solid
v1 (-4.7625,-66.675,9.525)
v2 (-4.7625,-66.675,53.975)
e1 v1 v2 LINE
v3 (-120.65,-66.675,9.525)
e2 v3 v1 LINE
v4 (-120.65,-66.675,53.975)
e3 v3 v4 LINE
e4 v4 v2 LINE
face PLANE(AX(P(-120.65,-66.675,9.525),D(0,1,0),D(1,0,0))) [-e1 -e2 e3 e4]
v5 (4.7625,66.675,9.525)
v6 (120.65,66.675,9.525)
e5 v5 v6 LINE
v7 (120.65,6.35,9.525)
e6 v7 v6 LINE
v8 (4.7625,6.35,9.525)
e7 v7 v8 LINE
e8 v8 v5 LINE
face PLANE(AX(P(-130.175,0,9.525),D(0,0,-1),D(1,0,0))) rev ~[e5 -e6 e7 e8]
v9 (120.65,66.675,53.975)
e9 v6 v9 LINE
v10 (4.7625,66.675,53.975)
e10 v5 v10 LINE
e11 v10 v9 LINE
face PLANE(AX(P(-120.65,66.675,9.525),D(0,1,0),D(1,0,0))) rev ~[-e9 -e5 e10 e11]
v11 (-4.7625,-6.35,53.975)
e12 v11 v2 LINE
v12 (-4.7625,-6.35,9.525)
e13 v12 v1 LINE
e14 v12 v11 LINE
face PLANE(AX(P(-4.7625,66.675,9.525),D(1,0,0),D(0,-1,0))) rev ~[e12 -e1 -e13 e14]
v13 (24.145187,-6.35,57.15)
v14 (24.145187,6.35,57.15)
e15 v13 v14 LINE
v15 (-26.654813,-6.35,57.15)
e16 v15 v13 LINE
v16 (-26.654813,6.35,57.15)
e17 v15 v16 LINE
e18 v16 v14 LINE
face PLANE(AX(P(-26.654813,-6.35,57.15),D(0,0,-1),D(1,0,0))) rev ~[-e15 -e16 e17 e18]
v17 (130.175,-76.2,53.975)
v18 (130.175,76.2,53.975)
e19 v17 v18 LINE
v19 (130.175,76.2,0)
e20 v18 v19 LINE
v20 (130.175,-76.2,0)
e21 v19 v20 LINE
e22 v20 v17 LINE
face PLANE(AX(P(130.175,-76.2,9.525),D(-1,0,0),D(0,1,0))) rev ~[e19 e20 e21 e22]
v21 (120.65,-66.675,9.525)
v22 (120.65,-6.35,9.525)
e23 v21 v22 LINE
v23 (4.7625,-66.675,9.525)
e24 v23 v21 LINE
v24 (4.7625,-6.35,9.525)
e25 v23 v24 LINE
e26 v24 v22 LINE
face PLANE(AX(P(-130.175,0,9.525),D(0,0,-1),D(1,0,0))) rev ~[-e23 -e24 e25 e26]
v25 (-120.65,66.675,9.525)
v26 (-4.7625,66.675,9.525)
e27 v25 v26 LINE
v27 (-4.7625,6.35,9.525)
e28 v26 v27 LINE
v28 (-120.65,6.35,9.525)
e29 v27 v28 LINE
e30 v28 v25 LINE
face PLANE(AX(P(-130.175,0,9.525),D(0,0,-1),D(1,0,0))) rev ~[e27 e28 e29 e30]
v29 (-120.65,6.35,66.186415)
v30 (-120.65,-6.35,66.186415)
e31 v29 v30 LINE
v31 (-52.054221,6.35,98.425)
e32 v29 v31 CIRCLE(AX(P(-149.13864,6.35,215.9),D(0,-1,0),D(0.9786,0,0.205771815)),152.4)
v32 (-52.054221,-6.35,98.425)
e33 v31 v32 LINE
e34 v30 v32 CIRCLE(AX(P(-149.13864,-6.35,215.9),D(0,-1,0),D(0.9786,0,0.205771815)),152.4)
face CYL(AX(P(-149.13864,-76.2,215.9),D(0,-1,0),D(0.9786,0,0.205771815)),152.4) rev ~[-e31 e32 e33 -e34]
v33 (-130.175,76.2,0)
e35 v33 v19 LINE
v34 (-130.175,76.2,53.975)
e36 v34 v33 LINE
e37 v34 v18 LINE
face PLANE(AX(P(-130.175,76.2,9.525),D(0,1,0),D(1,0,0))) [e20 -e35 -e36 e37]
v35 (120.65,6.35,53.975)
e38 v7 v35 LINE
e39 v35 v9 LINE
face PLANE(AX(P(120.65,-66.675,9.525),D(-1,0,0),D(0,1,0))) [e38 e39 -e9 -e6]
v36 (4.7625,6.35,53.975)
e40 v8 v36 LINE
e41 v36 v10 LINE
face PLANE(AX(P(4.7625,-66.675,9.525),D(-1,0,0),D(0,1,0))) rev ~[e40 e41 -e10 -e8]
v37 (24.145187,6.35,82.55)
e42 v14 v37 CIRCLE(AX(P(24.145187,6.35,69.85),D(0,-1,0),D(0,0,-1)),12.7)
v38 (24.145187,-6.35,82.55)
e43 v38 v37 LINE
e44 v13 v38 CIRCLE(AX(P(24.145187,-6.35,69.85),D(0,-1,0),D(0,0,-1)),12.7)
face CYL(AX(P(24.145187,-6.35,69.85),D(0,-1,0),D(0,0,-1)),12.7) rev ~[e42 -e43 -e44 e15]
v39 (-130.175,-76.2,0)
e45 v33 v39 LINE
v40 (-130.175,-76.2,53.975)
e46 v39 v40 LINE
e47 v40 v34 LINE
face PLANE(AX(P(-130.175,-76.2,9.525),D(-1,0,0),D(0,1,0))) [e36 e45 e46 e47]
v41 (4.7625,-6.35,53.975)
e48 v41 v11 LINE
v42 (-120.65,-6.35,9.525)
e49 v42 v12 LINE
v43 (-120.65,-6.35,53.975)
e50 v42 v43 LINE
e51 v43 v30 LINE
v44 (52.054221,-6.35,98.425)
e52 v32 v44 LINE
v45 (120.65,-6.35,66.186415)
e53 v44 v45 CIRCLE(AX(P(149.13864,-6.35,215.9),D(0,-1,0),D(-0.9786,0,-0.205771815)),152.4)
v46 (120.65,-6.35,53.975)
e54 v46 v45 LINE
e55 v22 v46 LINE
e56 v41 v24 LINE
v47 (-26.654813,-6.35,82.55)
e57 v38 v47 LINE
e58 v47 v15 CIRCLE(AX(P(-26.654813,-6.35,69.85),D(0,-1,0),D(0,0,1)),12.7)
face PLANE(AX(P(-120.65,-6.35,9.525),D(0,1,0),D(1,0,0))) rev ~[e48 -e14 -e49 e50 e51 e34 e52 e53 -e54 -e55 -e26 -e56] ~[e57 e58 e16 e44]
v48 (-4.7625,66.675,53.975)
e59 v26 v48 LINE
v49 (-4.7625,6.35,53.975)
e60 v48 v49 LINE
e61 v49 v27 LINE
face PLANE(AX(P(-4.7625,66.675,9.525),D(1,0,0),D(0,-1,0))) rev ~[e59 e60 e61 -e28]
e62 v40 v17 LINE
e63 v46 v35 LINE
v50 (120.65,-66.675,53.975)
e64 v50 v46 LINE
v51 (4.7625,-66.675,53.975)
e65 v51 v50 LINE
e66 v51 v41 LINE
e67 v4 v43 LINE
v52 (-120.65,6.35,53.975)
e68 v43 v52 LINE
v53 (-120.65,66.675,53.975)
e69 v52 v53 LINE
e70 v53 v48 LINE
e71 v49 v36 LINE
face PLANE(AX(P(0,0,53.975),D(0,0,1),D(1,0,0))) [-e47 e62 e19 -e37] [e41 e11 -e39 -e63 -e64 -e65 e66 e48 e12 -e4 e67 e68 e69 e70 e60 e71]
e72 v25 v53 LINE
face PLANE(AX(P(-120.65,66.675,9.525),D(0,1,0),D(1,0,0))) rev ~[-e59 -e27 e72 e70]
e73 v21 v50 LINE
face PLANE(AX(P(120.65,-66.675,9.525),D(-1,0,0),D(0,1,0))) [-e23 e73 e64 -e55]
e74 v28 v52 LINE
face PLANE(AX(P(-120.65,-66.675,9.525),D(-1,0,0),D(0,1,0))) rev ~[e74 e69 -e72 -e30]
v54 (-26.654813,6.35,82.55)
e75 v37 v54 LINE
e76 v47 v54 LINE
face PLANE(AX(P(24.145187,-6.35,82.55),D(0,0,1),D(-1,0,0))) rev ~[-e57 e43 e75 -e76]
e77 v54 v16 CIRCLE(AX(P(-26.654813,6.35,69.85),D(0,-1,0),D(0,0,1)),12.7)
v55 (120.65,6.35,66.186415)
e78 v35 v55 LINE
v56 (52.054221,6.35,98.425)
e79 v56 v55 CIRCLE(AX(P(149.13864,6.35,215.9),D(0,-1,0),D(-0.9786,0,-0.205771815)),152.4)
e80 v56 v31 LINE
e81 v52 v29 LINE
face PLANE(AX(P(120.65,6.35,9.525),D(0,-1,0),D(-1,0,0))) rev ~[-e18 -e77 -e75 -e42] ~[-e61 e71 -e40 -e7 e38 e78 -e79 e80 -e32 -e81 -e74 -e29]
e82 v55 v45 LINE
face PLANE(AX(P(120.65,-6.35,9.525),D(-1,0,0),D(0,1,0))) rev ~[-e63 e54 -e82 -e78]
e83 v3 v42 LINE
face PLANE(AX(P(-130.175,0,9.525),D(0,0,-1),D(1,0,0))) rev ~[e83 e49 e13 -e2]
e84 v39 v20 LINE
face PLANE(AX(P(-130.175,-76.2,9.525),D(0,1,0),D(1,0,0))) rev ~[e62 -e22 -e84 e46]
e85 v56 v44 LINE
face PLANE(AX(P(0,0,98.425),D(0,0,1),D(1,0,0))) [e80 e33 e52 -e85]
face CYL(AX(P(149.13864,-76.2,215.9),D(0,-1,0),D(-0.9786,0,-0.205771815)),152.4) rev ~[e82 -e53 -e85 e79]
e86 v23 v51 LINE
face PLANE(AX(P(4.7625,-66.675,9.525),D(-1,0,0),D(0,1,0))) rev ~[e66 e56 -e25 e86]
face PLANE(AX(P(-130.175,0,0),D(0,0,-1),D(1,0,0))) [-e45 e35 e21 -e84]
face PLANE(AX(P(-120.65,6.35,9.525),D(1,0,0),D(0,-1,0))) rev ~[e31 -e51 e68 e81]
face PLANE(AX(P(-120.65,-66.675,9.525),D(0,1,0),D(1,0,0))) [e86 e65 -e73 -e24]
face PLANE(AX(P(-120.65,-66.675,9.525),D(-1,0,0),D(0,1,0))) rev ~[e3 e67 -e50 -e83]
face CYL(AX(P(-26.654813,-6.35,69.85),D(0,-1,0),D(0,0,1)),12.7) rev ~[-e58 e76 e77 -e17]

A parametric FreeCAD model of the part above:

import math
import FreeCAD as App
import Part
import Sketcher
Q = App.Units.Quantity

doc = App.newDocument("Part")
params = doc.addObject("Spreadsheet::Sheet", "Params")
for row, (alias, value) in enumerate([
    ("sketch1_width", "10.25 in"),
    ("sketch1_height", "0.375 in"),
    ("pad1_length", "6 in"),
    ("sketch2_height", "6 in"),
    ("sketch2_width", "9.5 in"),
    ("sketch2_width2", "10.25 in"),
    ("sketch2_height2", "5.25 in"),
    ("pad2_length", "1.75 in"),
    ("sketch3_height", "5.25 in"),
    ("sketch3_width", "0.375 in"),
    ("pad3_length", "1.75 in"),
    ("sketch4_width", "9.5 in"),
    ("sketch4_height", "0.5 in"),
    ("pad4_length", "3.5 in"),
    ("sketch5_radius", "0.5 in"),
    ("sketch5_width", "2 in"),
    ("pocket1_length", "0.5 in"),
    ("sketch6_radius", "6 in"),
    ("pocket2_length", "8.8 in"),
], start=1):
    params.set(f"A{row}", alias)
    params.set(f"B{row}", "=" + value)
    params.setAlias(f"B{row}", alias)

body = doc.addObject("PartDesign::Body", "Body")

sketch1 = body.newObject("Sketcher::SketchObject", "Sketch")
sketch1.AttachmentSupport = (doc.getObject("XZ_Plane"), [""])
sketch1.MapMode = "FlatFace"
sketch1.addGeometry([
    Part.LineSegment(App.Vector(-130, 10, 0), App.Vector(-130, 0, 0)),
    Part.LineSegment(App.Vector(-130, 0, 0), App.Vector(130, 0, 0)),
    Part.LineSegment(App.Vector(130, 0, 0), App.Vector(130, 10, 0)),
    Part.LineSegment(App.Vector(130, 10, 0), App.Vector(-130, 10, 0)),
], False)
sketch1.addConstraint([
    Sketcher.Constraint("Coincident", 0, 2, 1, 1),
    Sketcher.Constraint("Coincident", 1, 2, 2, 1),
    Sketcher.Constraint("Coincident", 2, 2, 3, 1),
    Sketcher.Constraint("Coincident", 3, 2, 0, 1),
    Sketcher.Constraint("Vertical", 0),
    Sketcher.Constraint("Horizontal", 1),
    Sketcher.Constraint("Vertical", 2),
    Sketcher.Constraint("Horizontal", 3),
    Sketcher.Constraint("Symmetric", 0, 2, 1, 2, -1, 1),
    Sketcher.Constraint("DistanceX", 1, 1, 1, 2, Q("10.25 in")),
    Sketcher.Constraint("DistanceY", 0, 2, 0, 1, Q("0.375 in")),
])
sketch1.setExpression("Constraints[9]", "Params.sketch1_width")
sketch1.setExpression("Constraints[10]", "Params.sketch1_height")
pad1 = body.newObject("PartDesign::Pad", "Pad")
pad1.Profile = sketch1
pad1.setExpression("Length", "Params.pad1_length")
pad1.Midplane = True

sketch2 = body.newObject("Sketcher::SketchObject", "Sketch001")
sketch2.AttachmentSupport = (doc.getObject("XY_Plane"), [""])
sketch2.MapMode = "FlatFace"
sketch2.AttachmentOffset = App.Placement(App.Vector(0, 0, 0.375 * 25.4), App.Rotation())
sketch2.addGeometry([
    Part.LineSegment(App.Vector(-130, 76, 0), App.Vector(-130, -76, 0)),
    Part.LineSegment(App.Vector(-130, -76, 0), App.Vector(130, -76, 0)),
    Part.LineSegment(App.Vector(130, -76, 0), App.Vector(130, 76, 0)),
    Part.LineSegment(App.Vector(130, 76, 0), App.Vector(-130, 76, 0)),
    Part.LineSegment(App.Vector(121, -67, 0), App.Vector(-121, -67, 0)),
    Part.LineSegment(App.Vector(-121, -67, 0), App.Vector(-121, 67, 0)),
    Part.LineSegment(App.Vector(-121, 67, 0), App.Vector(121, 67, 0)),
    Part.LineSegment(App.Vector(121, 67, 0), App.Vector(121, -67, 0)),
], False)
sketch2.addConstraint([
    Sketcher.Constraint("Coincident", 0, 2, 1, 1),
    Sketcher.Constraint("Coincident", 1, 2, 2, 1),
    Sketcher.Constraint("Coincident", 2, 2, 3, 1),
    Sketcher.Constraint("Coincident", 3, 2, 0, 1),
    Sketcher.Constraint("Coincident", 4, 2, 5, 1),
    Sketcher.Constraint("Coincident", 5, 2, 6, 1),
    Sketcher.Constraint("Coincident", 6, 2, 7, 1),
    Sketcher.Constraint("Coincident", 7, 2, 4, 1),
    Sketcher.Constraint("Vertical", 0),
    Sketcher.Constraint("Horizontal", 1),
    Sketcher.Constraint("Vertical", 2),
    Sketcher.Constraint("Horizontal", 3),
    Sketcher.Constraint("Horizontal", 4),
    Sketcher.Constraint("Vertical", 5),
    Sketcher.Constraint("Horizontal", 6),
    Sketcher.Constraint("Vertical", 7),
    Sketcher.Constraint("Symmetric", 0, 2, 2, 2, -1, 1),
    Sketcher.Constraint("Symmetric", 4, 2, 6, 2, -1, 1),
    Sketcher.Constraint("DistanceY", 0, 2, 0, 1, Q("6 in")),
    Sketcher.Constraint("DistanceX", 4, 2, 4, 1, Q("9.5 in")),
    Sketcher.Constraint("DistanceX", 1, 1, 1, 2, Q("10.25 in")),
    Sketcher.Constraint("DistanceY", 5, 1, 5, 2, Q("5.25 in")),
])
sketch2.setExpression("Constraints[18]", "Params.sketch2_height")
sketch2.setExpression("Constraints[19]", "Params.sketch2_width")
sketch2.setExpression("Constraints[20]", "Params.sketch2_width2")
sketch2.setExpression("Constraints[21]", "Params.sketch2_height2")
pad2 = body.newObject("PartDesign::Pad", "Pad001")
pad2.Profile = sketch2
pad2.setExpression("Length", "Params.pad2_length")

sketch3 = body.newObject("Sketcher::SketchObject", "Sketch002")
sketch3.AttachmentSupport = (doc.getObject("XY_Plane"), [""])
sketch3.MapMode = "FlatFace"
sketch3.AttachmentOffset = App.Placement(App.Vector(0, 0, 0.375 * 25.4), App.Rotation())
sketch3.addGeometry([
    Part.LineSegment(App.Vector(-5, -67, 0), App.Vector(5, -67, 0)),
    Part.LineSegment(App.Vector(5, -67, 0), App.Vector(5, 67, 0)),
    Part.LineSegment(App.Vector(5, 67, 0), App.Vector(-5, 67, 0)),
    Part.LineSegment(App.Vector(-5, 67, 0), App.Vector(-5, -67, 0)),
], False)
sketch3.addConstraint([
    Sketcher.Constraint("Coincident", 0, 2, 1, 1),
    Sketcher.Constraint("Coincident", 1, 2, 2, 1),
    Sketcher.Constraint("Coincident", 2, 2, 3, 1),
    Sketcher.Constraint("Coincident", 3, 2, 0, 1),
    Sketcher.Constraint("Horizontal", 0),
    Sketcher.Constraint("Vertical", 1),
    Sketcher.Constraint("Horizontal", 2),
    Sketcher.Constraint("Vertical", 3),
    Sketcher.Constraint("Symmetric", 0, 2, 2, 2, -1, 1),
    Sketcher.Constraint("DistanceY", 1, 1, 1, 2, Q("5.25 in")),
    Sketcher.Constraint("DistanceX", 0, 1, 0, 2, Q("0.375 in")),
])
sketch3.setExpression("Constraints[9]", "Params.sketch3_height")
sketch3.setExpression("Constraints[10]", "Params.sketch3_width")
pad3 = body.newObject("PartDesign::Pad", "Pad002")
pad3.Profile = sketch3
pad3.setExpression("Length", "Params.pad3_length")

sketch4 = body.newObject("Sketcher::SketchObject", "Sketch003")
sketch4.AttachmentSupport = (doc.getObject("XY_Plane"), [""])
sketch4.MapMode = "FlatFace"
sketch4.AttachmentOffset = App.Placement(App.Vector(0, 0, 0.375 * 25.4), App.Rotation())
sketch4.addGeometry([
    Part.LineSegment(App.Vector(-121, 6, 0), App.Vector(-121, -6, 0)),
    Part.LineSegment(App.Vector(-121, -6, 0), App.Vector(121, -6, 0)),
    Part.LineSegment(App.Vector(121, -6, 0), App.Vector(121, 6, 0)),
    Part.LineSegment(App.Vector(121, 6, 0), App.Vector(-121, 6, 0)),
], False)
sketch4.addConstraint([
    Sketcher.Constraint("Coincident", 0, 2, 1, 1),
    Sketcher.Constraint("Coincident", 1, 2, 2, 1),
    Sketcher.Constraint("Coincident", 2, 2, 3, 1),
    Sketcher.Constraint("Coincident", 3, 2, 0, 1),
    Sketcher.Constraint("Vertical", 0),
    Sketcher.Constraint("Horizontal", 1),
    Sketcher.Constraint("Vertical", 2),
    Sketcher.Constraint("Horizontal", 3),
    Sketcher.Constraint("Symmetric", 0, 2, 2, 2, -1, 1),
    Sketcher.Constraint("DistanceX", 1, 1, 1, 2, Q("9.5 in")),
    Sketcher.Constraint("DistanceY", 0, 2, 0, 1, Q("0.5 in")),
])
sketch4.setExpression("Constraints[9]", "Params.sketch4_width")
sketch4.setExpression("Constraints[10]", "Params.sketch4_height")
pad4 = body.newObject("PartDesign::Pad", "Pad003")
pad4.Profile = sketch4
pad4.setExpression("Length", "Params.pad4_length")

sketch5 = body.newObject("Sketcher::SketchObject", "Sketch004")
sketch5.AttachmentSupport = (doc.getObject("XZ_Plane"), [""])
sketch5.MapMode = "FlatFace"
sketch5.AttachmentOffset = App.Placement(App.Vector(0, 0, 0.25 * 25.4), App.Rotation())
sketch5.addGeometry([
    Part.ArcOfCircle(Part.Circle(App.Vector(24, 70, 0), App.Vector(0, 0, 1), 13), math.radians(-90), math.radians(90)),
    Part.LineSegment(App.Vector(24, 83, 0), App.Vector(-27, 83, 0)),
    Part.ArcOfCircle(Part.Circle(App.Vector(-27, 70, 0), App.Vector(0, 0, 1), 13), math.radians(90), math.radians(270)),
    Part.LineSegment(App.Vector(-27, 57, 0), App.Vector(24, 57, 0)),
], False)
sketch5.addConstraint([
    Sketcher.Constraint("Tangent", 0, 2, 1, 1),
    Sketcher.Constraint("Tangent", 1, 2, 2, 1),
    Sketcher.Constraint("Tangent", 2, 2, 3, 1),
    Sketcher.Constraint("Tangent", 3, 2, 0, 1),
    Sketcher.Constraint("Horizontal", 1),
    Sketcher.Constraint("Horizontal", 3),
    Sketcher.Constraint("Radius", 0, Q("0.5 in")),
    Sketcher.Constraint("DistanceX", 1, 2, 1, 1, Q("2 in")),
    Sketcher.Constraint("DistanceY", -1, 1, 0, 3, Q("2.75 in")),
    Sketcher.Constraint("DistanceX", -1, 1, 0, 3, Q("24.145187 mm")),
])
sketch5.setExpression("Constraints[6]", "Params.sketch5_radius")
sketch5.setExpression("Constraints[7]", "Params.sketch5_width")
pocket1 = body.newObject("PartDesign::Pocket", "Pocket")
pocket1.Profile = sketch5
pocket1.setExpression("Length", "Params.pocket1_length")

sketch6 = body.newObject("Sketcher::SketchObject", "Sketch005")
sketch6.AttachmentSupport = (doc.getObject("XZ_Plane"), [""])
sketch6.MapMode = "FlatFace"
sketch6.AttachmentOffset = App.Placement(App.Vector(0, 0, 3 * 25.4), App.Rotation())
sketch6.addGeometry([
    Part.ArcOfCircle(Part.Circle(App.Vector(-149, 216, 0), App.Vector(0, 0, 1), 152), math.radians(12), math.radians(348)),
    Part.ArcOfCircle(Part.Circle(App.Vector(149, 216, 0), App.Vector(0, 0, 1), 152), math.radians(-168), math.radians(168)),
], False)
sketch6.addConstraint([
    Sketcher.Constraint("Coincident", 0, 1, 1, 2),
    Sketcher.Constraint("Coincident", 1, 1, 0, 2),
    Sketcher.Constraint("Equal", 0, 1),
    Sketcher.Constraint("Symmetric", 0, 3, 1, 3, -2),
    Sketcher.Constraint("Radius", 0, Q("6 in")),
    Sketcher.Constraint("DistanceY", -1, 1, 0, 3, Q("8.5 in")),
    Sketcher.Constraint("DistanceX", 0, 3, -1, 1, Q("5.8716 in")),
])
sketch6.setExpression("Constraints[4]", "Params.sketch6_radius")
pocket2 = body.newObject("PartDesign::Pocket", "Pocket001")
pocket2.Profile = sketch6
pocket2.setExpression("Length", "Params.pocket2_length")

doc.recompute()
